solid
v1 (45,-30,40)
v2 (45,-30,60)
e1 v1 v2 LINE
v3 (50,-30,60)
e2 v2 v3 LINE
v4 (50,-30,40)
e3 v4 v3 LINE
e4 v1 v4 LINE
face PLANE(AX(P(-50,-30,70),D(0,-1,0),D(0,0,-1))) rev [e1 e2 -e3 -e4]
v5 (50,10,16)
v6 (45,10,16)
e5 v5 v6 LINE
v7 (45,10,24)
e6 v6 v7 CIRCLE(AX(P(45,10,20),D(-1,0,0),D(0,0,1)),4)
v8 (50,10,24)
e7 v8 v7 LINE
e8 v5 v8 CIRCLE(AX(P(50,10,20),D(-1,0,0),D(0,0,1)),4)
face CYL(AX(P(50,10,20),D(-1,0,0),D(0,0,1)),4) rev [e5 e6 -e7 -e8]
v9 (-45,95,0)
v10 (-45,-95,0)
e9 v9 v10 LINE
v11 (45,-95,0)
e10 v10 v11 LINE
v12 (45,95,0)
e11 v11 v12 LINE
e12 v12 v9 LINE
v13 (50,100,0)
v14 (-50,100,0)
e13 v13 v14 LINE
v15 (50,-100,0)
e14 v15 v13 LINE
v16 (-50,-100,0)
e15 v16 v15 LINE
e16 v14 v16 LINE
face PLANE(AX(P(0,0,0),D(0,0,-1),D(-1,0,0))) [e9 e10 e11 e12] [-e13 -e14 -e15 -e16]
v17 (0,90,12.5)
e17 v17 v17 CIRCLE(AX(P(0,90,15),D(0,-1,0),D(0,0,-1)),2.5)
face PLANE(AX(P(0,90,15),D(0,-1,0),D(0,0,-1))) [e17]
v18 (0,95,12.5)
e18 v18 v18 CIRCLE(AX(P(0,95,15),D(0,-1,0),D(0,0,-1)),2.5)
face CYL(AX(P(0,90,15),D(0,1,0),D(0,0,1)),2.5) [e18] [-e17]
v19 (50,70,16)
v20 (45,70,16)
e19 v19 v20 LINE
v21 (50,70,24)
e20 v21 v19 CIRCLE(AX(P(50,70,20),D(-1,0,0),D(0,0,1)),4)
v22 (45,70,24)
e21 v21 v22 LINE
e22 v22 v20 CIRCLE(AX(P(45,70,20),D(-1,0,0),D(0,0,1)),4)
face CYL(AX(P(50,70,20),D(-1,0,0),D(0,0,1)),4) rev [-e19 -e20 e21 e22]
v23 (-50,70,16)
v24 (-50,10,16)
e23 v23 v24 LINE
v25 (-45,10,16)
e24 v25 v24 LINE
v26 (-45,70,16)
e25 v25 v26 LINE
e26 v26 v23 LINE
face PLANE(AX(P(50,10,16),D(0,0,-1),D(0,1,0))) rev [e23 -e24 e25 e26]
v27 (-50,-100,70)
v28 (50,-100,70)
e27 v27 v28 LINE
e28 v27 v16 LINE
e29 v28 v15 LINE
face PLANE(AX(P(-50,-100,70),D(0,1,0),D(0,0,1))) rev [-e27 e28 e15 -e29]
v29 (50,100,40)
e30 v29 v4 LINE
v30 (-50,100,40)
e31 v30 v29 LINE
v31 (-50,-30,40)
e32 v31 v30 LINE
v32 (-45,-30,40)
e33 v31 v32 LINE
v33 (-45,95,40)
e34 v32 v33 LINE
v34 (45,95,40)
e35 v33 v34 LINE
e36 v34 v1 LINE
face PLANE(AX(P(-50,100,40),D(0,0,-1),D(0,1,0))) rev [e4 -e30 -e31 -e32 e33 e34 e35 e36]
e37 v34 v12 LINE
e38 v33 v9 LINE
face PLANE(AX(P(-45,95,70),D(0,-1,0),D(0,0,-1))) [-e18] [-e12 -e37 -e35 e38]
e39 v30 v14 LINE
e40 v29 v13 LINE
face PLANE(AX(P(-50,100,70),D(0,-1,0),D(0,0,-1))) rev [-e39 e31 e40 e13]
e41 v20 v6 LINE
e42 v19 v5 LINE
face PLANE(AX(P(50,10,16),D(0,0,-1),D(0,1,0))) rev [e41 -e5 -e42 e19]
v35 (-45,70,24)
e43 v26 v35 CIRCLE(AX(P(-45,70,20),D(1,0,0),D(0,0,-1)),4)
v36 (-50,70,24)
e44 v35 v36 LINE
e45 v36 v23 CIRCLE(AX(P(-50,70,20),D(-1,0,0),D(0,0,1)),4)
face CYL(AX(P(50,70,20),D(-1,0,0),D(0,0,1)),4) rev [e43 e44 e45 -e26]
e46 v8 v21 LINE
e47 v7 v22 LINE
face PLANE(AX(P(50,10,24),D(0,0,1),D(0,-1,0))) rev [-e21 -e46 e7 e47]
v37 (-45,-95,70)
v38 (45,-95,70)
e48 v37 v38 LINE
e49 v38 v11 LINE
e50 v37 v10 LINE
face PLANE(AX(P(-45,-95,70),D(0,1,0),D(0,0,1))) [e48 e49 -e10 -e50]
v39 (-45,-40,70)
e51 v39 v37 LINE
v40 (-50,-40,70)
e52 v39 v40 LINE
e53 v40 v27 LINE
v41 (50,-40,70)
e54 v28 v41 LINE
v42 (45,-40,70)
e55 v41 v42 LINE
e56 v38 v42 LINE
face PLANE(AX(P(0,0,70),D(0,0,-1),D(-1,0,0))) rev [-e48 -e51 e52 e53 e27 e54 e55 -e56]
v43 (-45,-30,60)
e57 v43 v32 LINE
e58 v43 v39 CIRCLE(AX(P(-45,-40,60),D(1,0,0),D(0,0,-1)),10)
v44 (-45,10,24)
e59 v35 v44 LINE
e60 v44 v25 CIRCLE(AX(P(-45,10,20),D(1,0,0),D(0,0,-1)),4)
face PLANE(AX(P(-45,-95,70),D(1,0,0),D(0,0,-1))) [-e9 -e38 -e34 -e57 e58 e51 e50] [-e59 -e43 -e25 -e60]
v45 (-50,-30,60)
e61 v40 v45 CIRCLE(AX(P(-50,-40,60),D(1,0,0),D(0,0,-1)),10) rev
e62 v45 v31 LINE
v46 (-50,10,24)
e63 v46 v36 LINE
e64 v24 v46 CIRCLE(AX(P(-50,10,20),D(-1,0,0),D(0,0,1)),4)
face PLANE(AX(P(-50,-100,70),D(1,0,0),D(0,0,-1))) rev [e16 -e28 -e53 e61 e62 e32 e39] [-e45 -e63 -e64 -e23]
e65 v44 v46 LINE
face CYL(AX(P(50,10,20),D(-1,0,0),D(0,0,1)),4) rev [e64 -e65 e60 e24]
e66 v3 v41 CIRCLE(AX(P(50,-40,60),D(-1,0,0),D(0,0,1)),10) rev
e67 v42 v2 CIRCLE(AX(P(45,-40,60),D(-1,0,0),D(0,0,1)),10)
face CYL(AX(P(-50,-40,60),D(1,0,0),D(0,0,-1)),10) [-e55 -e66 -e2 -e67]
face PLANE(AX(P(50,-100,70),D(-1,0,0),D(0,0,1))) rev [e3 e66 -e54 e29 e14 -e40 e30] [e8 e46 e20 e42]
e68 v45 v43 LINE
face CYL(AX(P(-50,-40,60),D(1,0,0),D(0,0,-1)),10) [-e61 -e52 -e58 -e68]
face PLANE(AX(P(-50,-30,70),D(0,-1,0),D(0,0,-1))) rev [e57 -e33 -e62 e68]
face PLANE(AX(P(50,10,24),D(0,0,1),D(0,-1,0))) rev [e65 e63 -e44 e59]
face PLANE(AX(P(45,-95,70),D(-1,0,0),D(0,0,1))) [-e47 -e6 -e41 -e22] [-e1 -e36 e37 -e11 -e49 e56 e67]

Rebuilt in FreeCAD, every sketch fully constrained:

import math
import FreeCAD as App
import Part
import Sketcher

V = App.Vector
Q = App.Units.Quantity


def edges_at(feature, points):
    """Names of the edges that pass closest to the given points."""
    edges = feature.Shape.Edges
    near = lambda p: min(range(len(edges)), key=lambda i: edges[i].distToShape(Part.Vertex(*p))[0])
    return sorted({f"Edge{near(p) + 1}" for p in points})


def add_polygon(sketch, points):
    """Adds a closed chain of lines whose ends are joined by coincident constraints."""
    first, n = sketch.GeometryCount, len(points)
    for a, b in zip(points, points[1:] + points[:1]):
        sketch.addGeometry(Part.LineSegment(App.Vector(*a, 0), App.Vector(*b, 0)), False)
    for i in range(n):
        sketch.addConstraint(Sketcher.Constraint("Coincident", first + i, 2, first + (i + 1) % n, 1))

doc = App.newDocument("Part")
params = doc.addObject("Spreadsheet::Sheet", "Params")
for row, (alias, value) in enumerate([
    ("sketch1_width", "100 mm"),
    ("sketch1_width2", "90 mm"),
    ("sketch1_height", "200 mm"),
    ("sketch1_height2", "190 mm"),
    ("pad1_length", "70 mm"),
    ("sketch2_width", "130 mm"),
    ("sketch2_height", "30 mm"),
    ("fillet_radius", "10 mm"),
    ("sketch3_diameter", "5 mm"),
    ("pad2_length", "5 mm"),
    ("sketch4_radius", "4 mm"),
    ("sketch4_width", "60 mm"),
], start=1):
    params.set(f"A{row}", alias)
    params.set(f"B{row}", "=" + value)
    params.setAlias(f"B{row}", alias)

body = doc.addObject("PartDesign::Body", "Body")

sketch1 = body.newObject("Sketcher::SketchObject", "Sketch")
sketch1.AttachmentSupport = (doc.getObject("XY_Plane"), [""])
sketch1.MapMode = "FlatFace"
add_polygon(sketch1, [(-50, 100), (-50, -100), (50, -100), (50, 100)])
add_polygon(sketch1, [(45, -95), (-45, -95), (-45, 95), (45, 95)])
sketch1.addConstraint([
    Sketcher.Constraint("Vertical", 0),
    Sketcher.Constraint("Horizontal", 1),
    Sketcher.Constraint("Vertical", 2),
    Sketcher.Constraint("Horizontal", 3),
    Sketcher.Constraint("Horizontal", 4),
    Sketcher.Constraint("Vertical", 5),
    Sketcher.Constraint("Horizontal", 6),
    Sketcher.Constraint("Vertical", 7),
    Sketcher.Constraint("Symmetric", 0, 2, 2, 2, -1, 1),
    Sketcher.Constraint("Symmetric", 4, 2, 6, 2, -1, 1),
    Sketcher.Constraint("DistanceX", 1, 1, 1, 2, Q("100 mm")),
    Sketcher.Constraint("DistanceX", 4, 2, 4, 1, Q("90 mm")),
    Sketcher.Constraint("DistanceY", 0, 2, 0, 1, Q("200 mm")),
    Sketcher.Constraint("DistanceY", 5, 1, 5, 2, Q("190 mm")),
])
sketch1.setExpression("Constraints[18]", "Params.sketch1_width")
sketch1.setExpression("Constraints[19]", "Params.sketch1_width2")
sketch1.setExpression("Constraints[20]", "Params.sketch1_height")
sketch1.setExpression("Constraints[21]", "Params.sketch1_height2")
pad1 = body.newObject("PartDesign::Pad", "Pad")
pad1.Profile = sketch1
pad1.setExpression("Length", "Params.pad1_length")

sketch2 = body.newObject("Sketcher::SketchObject", "Sketch001")
sketch2.AttachmentSupport = (doc.getObject("YZ_Plane"), [""])
sketch2.MapMode = "FlatFace"
sketch2.AttachmentOffset = App.Placement(V(0, 0, 50), App.Rotation())
add_polygon(sketch2, [(100, 70), (-30, 70), (-30, 40), (100, 40)])
sketch2.addConstraint([
    Sketcher.Constraint("Horizontal", 0),
    Sketcher.Constraint("Vertical", 1),
    Sketcher.Constraint("Horizontal", 2),
    Sketcher.Constraint("Vertical", 3),
    Sketcher.Constraint("DistanceX", 0, 2, 0, 1, Q("130 mm")),
    Sketcher.Constraint("DistanceY", 1, 2, 1, 1, Q("30 mm")),
    Sketcher.Constraint("DistanceX", 0, 2, -1, 1, Q("30 mm")),
    Sketcher.Constraint("DistanceY", -1, 1, 0, 2, Q("70 mm")),
])
sketch2.setExpression("Constraints[8]", "Params.sketch2_width")
sketch2.setExpression("Constraints[9]", "Params.sketch2_height")
pocket1 = body.newObject("PartDesign::Pocket", "Pocket")
pocket1.Profile = sketch2
pocket1.Type = "ThroughAll"
pocket1.Midplane = True
doc.recompute()

fillet = body.newObject("PartDesign::Fillet", "Fillet")
fillet.Base = (pocket1, edges_at(pocket1, [(47.5, -30, 70), (-47.5, -30, 70)]))
fillet.setExpression("Radius", "Params.fillet_radius")

sketch3 = body.newObject("Sketcher::SketchObject", "Sketch002")
sketch3.AttachmentSupport = (doc.getObject("XZ_Plane"), [""])
sketch3.MapMode = "FlatFace"
sketch3.AttachmentOffset = App.Placement(V(0, 0, -95), App.Rotation())
sketch3.addGeometry(Part.Circle(V(0, 15, 0), V(0, 0, 1), 2.5), False)
sketch3.addConstraint([
    Sketcher.Constraint("PointOnObject", 0, 3, -2),
    Sketcher.Constraint("Diameter", 0, Q("5 mm")),
    Sketcher.Constraint("DistanceY", -1, 1, 0, 3, Q("15 mm")),
])
sketch3.setExpression("Constraints[1]", "Params.sketch3_diameter")
pad2 = body.newObject("PartDesign::Pad", "Pad001")
pad2.Profile = sketch3
pad2.setExpression("Length", "Params.pad2_length")

sketch4 = body.newObject("Sketcher::SketchObject", "Sketch003")
sketch4.AttachmentSupport = (doc.getObject("YZ_Plane"), [""])
sketch4.MapMode = "FlatFace"
sketch4.AttachmentOffset = App.Placement(V(0, 0, -50), App.Rotation())
sketch4.addGeometry([
    Part.LineSegment(V(70, 16, 0), V(10, 16, 0)),
    Part.ArcOfCircle(Part.Circle(V(10, 20, 0), V(0, 0, 1), 4), math.radians(90), math.radians(270)),
    Part.LineSegment(V(10, 24, 0), V(70, 24, 0)),
    Part.ArcOfCircle(Part.Circle(V(70, 20, 0), V(0, 0, 1), 4), math.radians(-90), math.radians(90)),
], False)
sketch4.addConstraint([
    Sketcher.Constraint("Tangent", 0, 2, 1, 2),
    Sketcher.Constraint("Tangent", 1, 1, 2, 1),
    Sketcher.Constraint("Tangent", 2, 2, 3, 2),
    Sketcher.Constraint("Tangent", 3, 1, 0, 1),
    Sketcher.Constraint("Horizontal", 0),
    Sketcher.Constraint("Horizontal", 2),
    Sketcher.Constraint("Radius", 1, Q("4 mm")),
    Sketcher.Constraint("DistanceX", 0, 2, 0, 1, Q("60 mm")),
    Sketcher.Constraint("DistanceX", -1, 1, 1, 3, Q("10 mm")),
    Sketcher.Constraint("DistanceY", -1, 1, 1, 3, Q("20 mm")),
])
sketch4.setExpression("Constraints[6]", "Params.sketch4_radius")
sketch4.setExpression("Constraints[7]", "Params.sketch4_width")
pocket2 = body.newObject("PartDesign::Pocket", "Pocket001")
pocket2.Profile = sketch4
pocket2.Type = "ThroughAll"
pocket2.Midplane = True

doc.recompute()
